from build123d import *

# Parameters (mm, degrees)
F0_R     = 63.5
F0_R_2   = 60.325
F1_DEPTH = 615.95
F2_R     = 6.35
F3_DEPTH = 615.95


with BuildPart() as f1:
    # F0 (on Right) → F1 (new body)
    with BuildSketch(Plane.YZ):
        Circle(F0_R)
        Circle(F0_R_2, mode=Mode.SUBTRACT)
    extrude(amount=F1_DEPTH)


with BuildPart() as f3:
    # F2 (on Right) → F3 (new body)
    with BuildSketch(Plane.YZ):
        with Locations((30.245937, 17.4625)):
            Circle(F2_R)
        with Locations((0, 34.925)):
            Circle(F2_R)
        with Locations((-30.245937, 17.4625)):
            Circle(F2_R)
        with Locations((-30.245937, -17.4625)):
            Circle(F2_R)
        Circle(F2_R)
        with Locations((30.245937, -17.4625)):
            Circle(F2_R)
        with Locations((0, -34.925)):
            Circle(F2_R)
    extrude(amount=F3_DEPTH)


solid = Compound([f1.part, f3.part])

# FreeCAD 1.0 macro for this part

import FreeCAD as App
import Part
import Sketcher

V = App.Vector
Q = App.Units.Quantity

doc = App.newDocument("Part")
body = doc.addObject("PartDesign::Body", "Body")

sketch1 = doc.addObject("Sketcher::SketchObject", "Sketch")
body.addObject(sketch1)
sketch1.AttachmentSupport = (doc.YZ_Plane, [""])
sketch1.MapMode = "FlatFace"
sketch1.addGeometry(Part.Circle(V(0, 0, 0), V(0, 0, 1), 64), False)
sketch1.addGeometry(Part.Circle(V(0, 0, 0), V(0, 0, 1), 60), False)
sketch1.addConstraint(Sketcher.Constraint("Coincident", 0, 3, -1, 1))
sketch1.addConstraint(Sketcher.Constraint("Coincident", 1, 3, -1, 1))
sketch1.addConstraint(Sketcher.Constraint("Diameter", 0, Q("5 in")))
sketch1.addConstraint(Sketcher.Constraint("Diameter", 1, Q("4.75 in")))
pad1 = doc.addObject("PartDesign::Pad", "Pad")
body.addObject(pad1)
pad1.Profile = sketch1
pad1.Length = Q("24.25 in")
body2 = doc.addObject("PartDesign::Body", "Body001")
body2.AllowCompound = True

sketch2 = doc.addObject("Sketcher::SketchObject", "Sketch001")
body2.addObject(sketch2)
sketch2.AttachmentSupport = (doc.getObject("YZ_Plane001"), [""])
sketch2.MapMode = "FlatFace"
sketch2.addGeometry(Part.Circle(V(30, 17, 0), V(0, 0, 1), 6), False)
sketch2.addGeometry(Part.Circle(V(0, 35, 0), V(0, 0, 1), 6), False)
sketch2.addGeometry(Part.Circle(V(-30, 17, 0), V(0, 0, 1), 6), False)
sketch2.addGeometry(Part.Circle(V(-30, -17, 0), V(0, 0, 1), 6), False)
sketch2.addGeometry(Part.Circle(V(0, 0, 0), V(0, 0, 1), 6), False)
sketch2.addGeometry(Part.Circle(V(30, -17, 0), V(0, 0, 1), 6), False)
sketch2.addGeometry(Part.Circle(V(0, -35, 0), V(0, 0, 1), 6), False)
sketch2.addConstraint(Sketcher.Constraint("Coincident", 4, 3, -1, 1))
sketch2.addConstraint(Sketcher.Constraint("Equal", 0, 1))
sketch2.addConstraint(Sketcher.Constraint("Equal", 1, 2))
sketch2.addConstraint(Sketcher.Constraint("Equal", 2, 3))
sketch2.addConstraint(Sketcher.Constraint("Equal", 3, 4))
sketch2.addConstraint(Sketcher.Constraint("Equal", 4, 5))
sketch2.addConstraint(Sketcher.Constraint("Equal", 5, 6))
sketch2.addConstraint(Sketcher.Constraint("Symmetric", 0, 3, 3, 3, -1, 1))
sketch2.addConstraint(Sketcher.Constraint("Symmetric", 2, 3, 5, 3, -1, 1))
sketch2.addConstraint(Sketcher.Constraint("Symmetric", 1, 3, 6, 3, -1, 1))
sketch2.addConstraint(Sketcher.Constraint("Symmetric", 0, 3, 2, 3, -2))
sketch2.addConstraint(Sketcher.Constraint("PointOnObject", 1, 3, -2))
sketch2.addConstraint(Sketcher.Constraint("Diameter", 0, Q("0.5 in")))
sketch2.addConstraint(Sketcher.Constraint("DistanceY", -1, 1, 0, 3, Q("0.6875 in")))
sketch2.addConstraint(Sketcher.Constraint("DistanceY", -1, 1, 1, 3, Q("1.375 in")))
sketch2.addConstraint(Sketcher.Constraint("DistanceX", -1, 1, 0, 3, Q("30.245937 mm")))
pad2 = doc.addObject("PartDesign::Pad", "Pad001")
body2.addObject(pad2)
pad2.Profile = sketch2
pad2.Length = Q("24.25 in")

doc.recompute()
